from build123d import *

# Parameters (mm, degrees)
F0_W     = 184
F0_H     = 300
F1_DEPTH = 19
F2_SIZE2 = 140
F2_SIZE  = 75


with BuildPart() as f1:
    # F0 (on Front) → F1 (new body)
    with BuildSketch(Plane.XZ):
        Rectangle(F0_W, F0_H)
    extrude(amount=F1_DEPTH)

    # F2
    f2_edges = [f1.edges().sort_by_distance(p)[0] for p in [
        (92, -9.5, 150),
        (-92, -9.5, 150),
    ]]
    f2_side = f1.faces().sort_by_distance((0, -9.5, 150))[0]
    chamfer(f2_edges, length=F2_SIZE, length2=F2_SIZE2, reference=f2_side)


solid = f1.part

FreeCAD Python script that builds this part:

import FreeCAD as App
import Part
import Sketcher
Q = App.Units.Quantity


def edges_at(feature, points):
    """Names of the edges that pass closest to the given points."""
    edges = feature.Shape.Edges
    near = lambda p: min(range(len(edges)), key=lambda i: edges[i].distToShape(Part.Vertex(*p))[0])
    return sorted({f"Edge{near(p) + 1}" for p in points})

doc = App.newDocument("Part")
body = doc.addObject("PartDesign::Body", "Body")

# Sketch on XZ plane
sketch1 = doc.addObject("Sketcher::SketchObject", "Sketch")
body.addObject(sketch1)
sketch1.AttachmentSupport = (doc.XZ_Plane, [""])
sketch1.MapMode = "FlatFace"
sketch1.addGeometry(Part.LineSegment(App.Vector(-92, 150, 0), App.Vector(-92, -150, 0)), False)
sketch1.addGeometry(Part.LineSegment(App.Vector(-92, -150, 0), App.Vector(92, -150, 0)), False)
sketch1.addGeometry(Part.LineSegment(App.Vector(92, -150, 0), App.Vector(92, 150, 0)), False)
sketch1.addGeometry(Part.LineSegment(App.Vector(92, 150, 0), App.Vector(-92, 150, 0)), False)
sketch1.addConstraint(Sketcher.Constraint("Coincident", 0, 2, 1, 1))
sketch1.addConstraint(Sketcher.Constraint("Coincident", 1, 2, 2, 1))
sketch1.addConstraint(Sketcher.Constraint("Coincident", 2, 2, 3, 1))
sketch1.addConstraint(Sketcher.Constraint("Coincident", 3, 2, 0, 1))
sketch1.addConstraint(Sketcher.Constraint("Vertical", 0))
sketch1.addConstraint(Sketcher.Constraint("Horizontal", 1))
sketch1.addConstraint(Sketcher.Constraint("Vertical", 2))
sketch1.addConstraint(Sketcher.Constraint("Horizontal", 3))
sketch1.addConstraint(Sketcher.Constraint("Symmetric", 0, 2, 2, 2, -1, 1))
sketch1.addConstraint(Sketcher.Constraint("DistanceX", 1, 1, 1, 2, Q("184 mm")))
sketch1.addConstraint(Sketcher.Constraint("DistanceY", 0, 2, 0, 1, Q("300 mm")))
pad1 = doc.addObject("PartDesign::Pad", "Pad")
body.addObject(pad1)
pad1.Profile = sketch1
pad1.Length = 19
doc.recompute()

chamfer = doc.addObject("PartDesign::Chamfer", "Chamfer")
body.addObject(chamfer)
chamfer.Base = (pad1, edges_at(pad1, [(92, -9.5, 150), (-92, -9.5, 150)]))
chamfer.ChamferType = "Two distances"
chamfer.Size = 75
chamfer.Size2 = 140
chamfer.FlipDirection = True

doc.recompute()
